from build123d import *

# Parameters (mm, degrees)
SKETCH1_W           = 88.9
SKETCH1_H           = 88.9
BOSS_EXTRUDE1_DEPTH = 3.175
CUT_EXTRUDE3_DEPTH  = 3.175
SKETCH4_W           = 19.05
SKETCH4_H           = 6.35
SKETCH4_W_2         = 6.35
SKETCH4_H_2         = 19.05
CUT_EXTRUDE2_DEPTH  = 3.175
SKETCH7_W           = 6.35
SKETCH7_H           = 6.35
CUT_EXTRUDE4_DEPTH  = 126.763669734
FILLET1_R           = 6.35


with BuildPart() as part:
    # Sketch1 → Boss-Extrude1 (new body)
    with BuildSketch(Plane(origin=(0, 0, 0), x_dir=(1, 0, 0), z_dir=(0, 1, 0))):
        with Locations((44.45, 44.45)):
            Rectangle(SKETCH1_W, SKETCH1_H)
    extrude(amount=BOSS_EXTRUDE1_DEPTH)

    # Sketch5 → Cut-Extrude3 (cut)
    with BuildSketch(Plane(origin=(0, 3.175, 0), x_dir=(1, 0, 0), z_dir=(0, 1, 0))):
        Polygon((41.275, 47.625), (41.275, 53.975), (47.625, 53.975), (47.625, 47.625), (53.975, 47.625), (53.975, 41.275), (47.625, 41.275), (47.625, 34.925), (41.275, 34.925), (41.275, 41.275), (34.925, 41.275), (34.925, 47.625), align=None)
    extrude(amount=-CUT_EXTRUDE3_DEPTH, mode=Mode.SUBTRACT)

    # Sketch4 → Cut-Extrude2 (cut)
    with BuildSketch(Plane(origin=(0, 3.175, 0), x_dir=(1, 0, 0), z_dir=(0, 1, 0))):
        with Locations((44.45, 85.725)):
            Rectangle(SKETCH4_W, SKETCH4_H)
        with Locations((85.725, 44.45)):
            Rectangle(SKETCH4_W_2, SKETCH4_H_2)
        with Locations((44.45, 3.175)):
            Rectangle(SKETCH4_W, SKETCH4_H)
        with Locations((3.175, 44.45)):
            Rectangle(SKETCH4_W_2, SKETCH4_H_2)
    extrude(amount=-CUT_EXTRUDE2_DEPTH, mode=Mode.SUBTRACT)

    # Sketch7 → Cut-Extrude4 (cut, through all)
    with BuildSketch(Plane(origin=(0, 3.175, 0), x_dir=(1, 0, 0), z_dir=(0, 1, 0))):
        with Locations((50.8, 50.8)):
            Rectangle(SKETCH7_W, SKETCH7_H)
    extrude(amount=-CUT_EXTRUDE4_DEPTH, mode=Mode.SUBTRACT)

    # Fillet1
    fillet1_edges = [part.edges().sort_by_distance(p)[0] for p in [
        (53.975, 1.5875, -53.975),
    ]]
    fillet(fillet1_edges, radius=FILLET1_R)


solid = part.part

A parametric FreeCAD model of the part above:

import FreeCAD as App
import Part
import Sketcher
from FreeCAD import Vector
Q = App.Units.Quantity


def edges_at(feature, points):
    """Names of the edges that pass closest to the given points."""
    edges = feature.Shape.Edges
    near = lambda p: min(range(len(edges)), key=lambda i: edges[i].distToShape(Part.Vertex(*p))[0])
    return sorted({f"Edge{near(p) + 1}" for p in points})

doc = App.newDocument("Part")
body = doc.addObject("PartDesign::Body", "Body")

# Sketch on XZ plane
sketch1 = doc.addObject("Sketcher::SketchObject", "Sketch")
body.addObject(sketch1)
sketch1.AttachmentSupport = (doc.XZ_Plane, [""])
sketch1.MapMode = "FlatFace"
sketch1.addGeometry([
    Part.LineSegment(Vector(0, -88.9, 0), Vector(0, 0, 0)),
    Part.LineSegment(Vector(0, 0, 0), Vector(88.9, 0, 0)),
    Part.LineSegment(Vector(88.9, 0, 0), Vector(88.9, -88.9, 0)),
    Part.LineSegment(Vector(88.9, -88.9, 0), Vector(0, -88.9, 0)),
], False)
sketch1.addConstraint([
    Sketcher.Constraint("Coincident", 0, 2, 1, 1),
    Sketcher.Constraint("Coincident", 1, 2, 2, 1),
    Sketcher.Constraint("Coincident", 2, 2, 3, 1),
    Sketcher.Constraint("Coincident", 3, 2, 0, 1),
    Sketcher.Constraint("Vertical", 0),
    Sketcher.Constraint("Horizontal", 1),
    Sketcher.Constraint("Vertical", 2),
    Sketcher.Constraint("Horizontal", 3),
    Sketcher.Constraint("Coincident", 0, 2, -1, 1),
    Sketcher.Constraint("Equal", 3, 0),
    Sketcher.Constraint("DistanceX", 1, 1, 1, 2, Q("3.5 in")),
])
pad1 = doc.addObject("PartDesign::Pad", "Pad")
body.addObject(pad1)
pad1.Profile = sketch1
pad1.Length = Q("0.125 in")
pad1.Reversed = True

# Sketch on XZ plane
sketch2 = doc.addObject("Sketcher::SketchObject", "Sketch001")
body.addObject(sketch2)
sketch2.AttachmentSupport = (doc.XZ_Plane, [""])
sketch2.MapMode = "FlatFace"
sketch2.AttachmentOffset = App.Placement(Vector(0, 0, -0.125 * 25.4), App.Rotation())
sketch2.addGeometry([
    Part.LineSegment(Vector(41.275, -53.975, 0), Vector(41.275, -47.625, 0)),  # 0
    Part.LineSegment(Vector(41.275, -47.625, 0), Vector(34.925, -47.625, 0)),  # 1
    Part.LineSegment(Vector(34.925, -47.625, 0), Vector(34.925, -41.275, 0)),  # 2
    Part.LineSegment(Vector(34.925, -41.275, 0), Vector(41.275, -41.275, 0)),  # 3
    Part.LineSegment(Vector(41.275, -41.275, 0), Vector(41.275, -34.925, 0)),  # 4
    Part.LineSegment(Vector(41.275, -34.925, 0), Vector(47.625, -34.925, 0)),  # 5
    Part.LineSegment(Vector(47.625, -34.925, 0), Vector(47.625, -41.275, 0)),  # 6
    Part.LineSegment(Vector(47.625, -41.275, 0), Vector(53.975, -41.275, 0)),  # 7
    Part.LineSegment(Vector(53.975, -41.275, 0), Vector(53.975, -47.625, 0)),  # 8
    Part.LineSegment(Vector(53.975, -47.625, 0), Vector(47.625, -47.625, 0)),  # 9
    Part.LineSegment(Vector(47.625, -47.625, 0), Vector(47.625, -53.975, 0)),  # 10
    Part.LineSegment(Vector(47.625, -53.975, 0), Vector(41.275, -53.975, 0)),  # 11
], False)
sketch2.addConstraint([
    Sketcher.Constraint("Coincident", 0, 2, 1, 1),
    Sketcher.Constraint("Coincident", 1, 2, 2, 1),
    Sketcher.Constraint("Coincident", 2, 2, 3, 1),
    Sketcher.Constraint("Coincident", 3, 2, 4, 1),
    Sketcher.Constraint("Coincident", 4, 2, 5, 1),
    Sketcher.Constraint("Coincident", 5, 2, 6, 1),
    Sketcher.Constraint("Coincident", 6, 2, 7, 1),
    Sketcher.Constraint("Coincident", 7, 2, 8, 1),
    Sketcher.Constraint("Coincident", 8, 2, 9, 1),
    Sketcher.Constraint("Coincident", 9, 2, 10, 1),
    Sketcher.Constraint("Coincident", 10, 2, 11, 1),
    Sketcher.Constraint("Coincident", 11, 2, 0, 1),
    Sketcher.Constraint("Vertical", 0),
    Sketcher.Constraint("Horizontal", 1),
    Sketcher.Constraint("Vertical", 2),
    Sketcher.Constraint("Horizontal", 3),
    Sketcher.Constraint("Vertical", 4),
    Sketcher.Constraint("Horizontal", 5),
    Sketcher.Constraint("Vertical", 6),
    Sketcher.Constraint("Horizontal", 7),
    Sketcher.Constraint("Vertical", 8),
    Sketcher.Constraint("Horizontal", 9),
    Sketcher.Constraint("Vertical", 10),
    Sketcher.Constraint("Horizontal", 11),
    Sketcher.Constraint("Horizontal", 3, 2, 6, 2),
    Sketcher.Constraint("Horizontal", 1, 2, 8, 2),
    Sketcher.Constraint("Vertical", 0, 2, 3, 2),
    Sketcher.Constraint("Vertical", 6, 2, 9, 2),
    Sketcher.Constraint("Equal", 3, 5),
    Sketcher.Constraint("Equal", 5, 7),
    Sketcher.Constraint("Equal", 11, 0),
    Sketcher.Constraint("Equal", 0, 2),
    Sketcher.Constraint("Equal", 2, 4),
    Sketcher.Constraint("DistanceX", 1, 2, 1, 1, Q("0.25 in")),
    Sketcher.Constraint("DistanceX", -1, 1, 0, 2, Q("1.625 in")),
    Sketcher.Constraint("DistanceY", 0, 2, -1, 1, Q("1.875 in")),
])
pocket1 = doc.addObject("PartDesign::Pocket", "Pocket")
body.addObject(pocket1)
pocket1.Profile = sketch2
pocket1.Length = Q("0.125 in")
pocket1.Reversed = True

# Sketch on XZ plane
sketch3 = doc.addObject("Sketcher::SketchObject", "Sketch002")
body.addObject(sketch3)
sketch3.AttachmentSupport = (doc.XZ_Plane, [""])
sketch3.MapMode = "FlatFace"
sketch3.AttachmentOffset = App.Placement(Vector(0, 0, -0.125 * 25.4), App.Rotation())
sketch3.addGeometry([
    Part.LineSegment(Vector(34.925, -88.9, 0), Vector(34.925, -82.55, 0)),  # 0
    Part.LineSegment(Vector(34.925, -82.55, 0), Vector(53.975, -82.55, 0)),  # 1
    Part.LineSegment(Vector(53.975, -82.55, 0), Vector(53.975, -88.9, 0)),  # 2
    Part.LineSegment(Vector(53.975, -88.9, 0), Vector(34.925, -88.9, 0)),  # 3
    Part.LineSegment(Vector(82.55, -53.975, 0), Vector(82.55, -34.925, 0)),  # 4
    Part.LineSegment(Vector(82.55, -34.925, 0), Vector(88.9, -34.925, 0)),  # 5
    Part.LineSegment(Vector(88.9, -34.925, 0), Vector(88.9, -53.975, 0)),  # 6
    Part.LineSegment(Vector(88.9, -53.975, 0), Vector(82.55, -53.975, 0)),  # 7
    Part.LineSegment(Vector(34.925, -6.35, 0), Vector(34.925, 0, 0)),  # 8
    Part.LineSegment(Vector(34.925, 0, 0), Vector(53.975, 0, 0)),  # 9
    Part.LineSegment(Vector(53.975, 0, 0), Vector(53.975, -6.35, 0)),  # 10
    Part.LineSegment(Vector(53.975, -6.35, 0), Vector(34.925, -6.35, 0)),  # 11
    Part.LineSegment(Vector(0, -53.975, 0), Vector(0, -34.925, 0)),  # 12
    Part.LineSegment(Vector(0, -34.925, 0), Vector(6.35, -34.925, 0)),  # 13
    Part.LineSegment(Vector(6.35, -34.925, 0), Vector(6.35, -53.975, 0)),  # 14
    Part.LineSegment(Vector(6.35, -53.975, 0), Vector(0, -53.975, 0)),  # 15
], False)
sketch3.addConstraint([
    Sketcher.Constraint("Coincident", 0, 2, 1, 1),
    Sketcher.Constraint("Coincident", 1, 2, 2, 1),
    Sketcher.Constraint("Coincident", 2, 2, 3, 1),
    Sketcher.Constraint("Coincident", 3, 2, 0, 1),
    Sketcher.Constraint("Coincident", 4, 2, 5, 1),
    Sketcher.Constraint("Coincident", 5, 2, 6, 1),
    Sketcher.Constraint("Coincident", 6, 2, 7, 1),
    Sketcher.Constraint("Coincident", 7, 2, 4, 1),
    Sketcher.Constraint("Coincident", 8, 2, 9, 1),
    Sketcher.Constraint("Coincident", 9, 2, 10, 1),
    Sketcher.Constraint("Coincident", 10, 2, 11, 1),
    Sketcher.Constraint("Coincident", 11, 2, 8, 1),
    Sketcher.Constraint("Coincident", 12, 2, 13, 1),
    Sketcher.Constraint("Coincident", 13, 2, 14, 1),
    Sketcher.Constraint("Coincident", 14, 2, 15, 1),
    Sketcher.Constraint("Coincident", 15, 2, 12, 1),
    Sketcher.Constraint("Vertical", 0),
    Sketcher.Constraint("Horizontal", 1),
    Sketcher.Constraint("Vertical", 2),
    Sketcher.Constraint("Horizontal", 3),
    Sketcher.Constraint("Vertical", 4),
    Sketcher.Constraint("Horizontal", 5),
    Sketcher.Constraint("Vertical", 6),
    Sketcher.Constraint("Horizontal", 7),
    Sketcher.Constraint("Vertical", 8),
    Sketcher.Constraint("Horizontal", 9),
    Sketcher.Constraint("Vertical", 10),
    Sketcher.Constraint("Horizontal", 11),
    Sketcher.Constraint("Vertical", 12),
    Sketcher.Constraint("Horizontal", 13),
    Sketcher.Constraint("Vertical", 14),
    Sketcher.Constraint("Horizontal", 15),
    Sketcher.Constraint("PointOnObject", 8, 2, -1),
    Sketcher.Constraint("PointOnObject", 12, 2, -2),
    Sketcher.Constraint("Horizontal", 5, 2, 12, 2),
    Sketcher.Constraint("Horizontal", 7, 2, 14, 2),
    Sketcher.Constraint("Vertical", 3, 2, 8, 2),
    Sketcher.Constraint("Vertical", 2, 2, 9, 2),
    Sketcher.Constraint("Equal", 7, 13),
    Sketcher.Constraint("Equal", 15, 0),
    Sketcher.Constraint("Equal", 11, 4),
    Sketcher.Constraint("Equal", 2, 8),
    Sketcher.Constraint("DistanceX", 1, 1, 1, 2, Q("0.75 in")),
    Sketcher.Constraint("DistanceX", 5, 1, 5, 2, Q("0.25 in")),
    Sketcher.Constraint("DistanceY", 2, 2, -1, 1, Q("3.5 in")),
    Sketcher.Constraint("DistanceX", -1, 1, 5, 2, Q("3.5 in")),
    Sketcher.Constraint("DistanceX", -1, 1, 0, 2, Q("1.375 in")),
    Sketcher.Constraint("DistanceY", 4, 2, -1, 1, Q("1.375 in")),
])
pocket2 = doc.addObject("PartDesign::Pocket", "Pocket001")
body.addObject(pocket2)
pocket2.Profile = sketch3
pocket2.Length = Q("0.125 in")
pocket2.Reversed = True

# Sketch on XZ plane
sketch4 = doc.addObject("Sketcher::SketchObject", "Sketch003")
body.addObject(sketch4)
sketch4.AttachmentSupport = (doc.XZ_Plane, [""])
sketch4.MapMode = "FlatFace"
sketch4.AttachmentOffset = App.Placement(Vector(0, 0, -0.125 * 25.4), App.Rotation())
sketch4.addGeometry([
    Part.LineSegment(Vector(47.625, -53.975, 0), Vector(47.625, -47.625, 0)),
    Part.LineSegment(Vector(47.625, -47.625, 0), Vector(53.975, -47.625, 0)),
    Part.LineSegment(Vector(53.975, -47.625, 0), Vector(53.975, -53.975, 0)),
    Part.LineSegment(Vector(53.975, -53.975, 0), Vector(47.625, -53.975, 0)),
], False)
sketch4.addConstraint([
    Sketcher.Constraint("Coincident", 0, 2, 1, 1),
    Sketcher.Constraint("Coincident", 1, 2, 2, 1),
    Sketcher.Constraint("Coincident", 2, 2, 3, 1),
    Sketcher.Constraint("Coincident", 3, 2, 0, 1),
    Sketcher.Constraint("Vertical", 0),
    Sketcher.Constraint("Horizontal", 1),
    Sketcher.Constraint("Vertical", 2),
    Sketcher.Constraint("Horizontal", 3),
    Sketcher.Constraint("Equal", 3, 0),
    Sketcher.Constraint("DistanceX", 1, 1, 1, 2, Q("0.25 in")),
    Sketcher.Constraint("DistanceX", -1, 1, 0, 2, Q("1.875 in")),
    Sketcher.Constraint("DistanceY", 0, 2, -1, 1, Q("1.875 in")),
])
pocket3 = doc.addObject("PartDesign::Pocket", "Pocket002")
body.addObject(pocket3)
pocket3.Profile = sketch4
pocket3.Type = "ThroughAll"
pocket3.Reversed = True
doc.recompute()

fillet = doc.addObject("PartDesign::Fillet", "Fillet")
body.addObject(fillet)
fillet.Base = (pocket3, edges_at(pocket3, [(53.975, 1.587, -53.975)]))
fillet.Radius = Q("0.25 in")

doc.recompute()
